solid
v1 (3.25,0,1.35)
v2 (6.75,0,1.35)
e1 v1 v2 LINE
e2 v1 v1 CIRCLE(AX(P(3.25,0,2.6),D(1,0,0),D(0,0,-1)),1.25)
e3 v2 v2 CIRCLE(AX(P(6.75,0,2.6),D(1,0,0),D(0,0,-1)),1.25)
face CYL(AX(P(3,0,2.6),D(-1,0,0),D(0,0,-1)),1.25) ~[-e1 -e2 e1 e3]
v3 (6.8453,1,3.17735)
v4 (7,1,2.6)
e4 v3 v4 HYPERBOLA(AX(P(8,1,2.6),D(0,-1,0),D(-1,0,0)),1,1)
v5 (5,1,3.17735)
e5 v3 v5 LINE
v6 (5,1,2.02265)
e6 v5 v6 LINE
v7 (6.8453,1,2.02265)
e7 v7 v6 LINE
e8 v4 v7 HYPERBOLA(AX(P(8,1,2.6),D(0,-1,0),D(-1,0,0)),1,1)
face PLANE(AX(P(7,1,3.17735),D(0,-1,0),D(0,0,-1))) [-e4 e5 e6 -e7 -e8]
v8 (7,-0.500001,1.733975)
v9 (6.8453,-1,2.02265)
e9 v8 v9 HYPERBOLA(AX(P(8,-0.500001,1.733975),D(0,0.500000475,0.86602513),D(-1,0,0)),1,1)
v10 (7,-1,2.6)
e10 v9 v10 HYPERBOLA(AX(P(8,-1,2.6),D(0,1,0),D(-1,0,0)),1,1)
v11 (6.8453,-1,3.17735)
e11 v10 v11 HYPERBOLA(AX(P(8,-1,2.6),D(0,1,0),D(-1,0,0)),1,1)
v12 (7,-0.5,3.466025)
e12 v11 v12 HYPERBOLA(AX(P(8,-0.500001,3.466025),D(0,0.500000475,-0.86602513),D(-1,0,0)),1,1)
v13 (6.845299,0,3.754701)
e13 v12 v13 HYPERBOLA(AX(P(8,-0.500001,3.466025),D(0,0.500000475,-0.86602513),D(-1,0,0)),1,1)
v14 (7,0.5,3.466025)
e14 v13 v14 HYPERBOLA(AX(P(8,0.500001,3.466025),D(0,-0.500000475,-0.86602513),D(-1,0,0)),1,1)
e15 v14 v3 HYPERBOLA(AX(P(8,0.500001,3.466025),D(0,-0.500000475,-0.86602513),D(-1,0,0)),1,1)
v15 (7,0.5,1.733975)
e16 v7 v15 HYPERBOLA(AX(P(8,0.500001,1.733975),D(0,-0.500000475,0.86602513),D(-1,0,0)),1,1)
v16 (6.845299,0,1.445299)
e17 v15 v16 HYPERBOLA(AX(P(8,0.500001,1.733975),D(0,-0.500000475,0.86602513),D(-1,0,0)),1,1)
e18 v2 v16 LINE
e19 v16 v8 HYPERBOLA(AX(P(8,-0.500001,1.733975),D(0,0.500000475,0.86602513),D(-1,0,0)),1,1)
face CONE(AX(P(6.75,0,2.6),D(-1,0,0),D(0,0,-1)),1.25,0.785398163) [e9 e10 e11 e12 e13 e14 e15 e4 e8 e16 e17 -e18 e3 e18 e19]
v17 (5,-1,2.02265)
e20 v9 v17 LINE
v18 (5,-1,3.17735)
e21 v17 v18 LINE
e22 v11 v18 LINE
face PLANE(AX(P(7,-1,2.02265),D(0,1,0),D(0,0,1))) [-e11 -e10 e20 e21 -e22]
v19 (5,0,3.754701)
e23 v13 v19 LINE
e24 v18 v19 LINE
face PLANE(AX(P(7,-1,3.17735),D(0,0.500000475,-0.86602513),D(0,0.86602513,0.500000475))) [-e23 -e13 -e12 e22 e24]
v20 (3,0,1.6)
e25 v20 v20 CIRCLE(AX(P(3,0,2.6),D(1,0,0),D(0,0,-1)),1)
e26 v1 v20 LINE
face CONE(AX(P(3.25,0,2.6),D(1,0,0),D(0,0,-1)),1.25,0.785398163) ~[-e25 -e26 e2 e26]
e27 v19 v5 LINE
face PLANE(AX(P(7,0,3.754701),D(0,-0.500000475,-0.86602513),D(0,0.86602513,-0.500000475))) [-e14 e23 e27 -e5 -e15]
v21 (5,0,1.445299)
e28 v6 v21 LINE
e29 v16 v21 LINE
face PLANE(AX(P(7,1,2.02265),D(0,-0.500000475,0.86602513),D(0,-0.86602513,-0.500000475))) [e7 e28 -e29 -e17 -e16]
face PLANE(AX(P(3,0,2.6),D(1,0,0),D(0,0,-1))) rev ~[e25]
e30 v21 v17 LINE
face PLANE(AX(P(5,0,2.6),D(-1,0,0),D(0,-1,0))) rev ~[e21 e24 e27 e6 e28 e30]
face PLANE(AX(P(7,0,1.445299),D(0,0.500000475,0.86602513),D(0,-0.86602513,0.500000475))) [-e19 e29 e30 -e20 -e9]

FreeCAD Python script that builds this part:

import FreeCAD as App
import Part
import Sketcher
from FreeCAD import Vector


def edges_at(feature, points):
    """Names of the edges that pass closest to the given points."""
    edges = feature.Shape.Edges
    near = lambda p: min(range(len(edges)), key=lambda i: edges[i].distToShape(Part.Vertex(*p))[0])
    return sorted({f"Edge{near(p) + 1}" for p in points})


def add_polygon(sketch, points):
    """Adds a closed chain of lines whose ends are joined by coincident constraints."""
    first, n = sketch.GeometryCount, len(points)
    for a, b in zip(points, points[1:] + points[:1]):
        sketch.addGeometry(Part.LineSegment(App.Vector(*a, 0), App.Vector(*b, 0)), False)
    for i in range(n):
        sketch.addConstraint(Sketcher.Constraint("Coincident", first + i, 2, first + (i + 1) % n, 1))

doc = App.newDocument("Part")
body = doc.addObject("PartDesign::Body", "Body")

# Sketch on XY plane
sketch1 = body.newObject("Sketcher::SketchObject", "Sketch")
sketch1.AttachmentSupport = (doc.getObject("XY_Plane"), [""])
sketch1.MapMode = "FlatFace"
sketch1.addGeometry(Part.Circle(Vector(0, 0, 0), Vector(0, 0, 1), 1.2), False)
sketch1.addConstraint(Sketcher.Constraint("Coincident", 0, 3, -1, 1))
sketch1.addConstraint(Sketcher.Constraint("Diameter", 0, 2.5))
pad1 = body.newObject("PartDesign::Pad", "Pad")
pad1.Profile = sketch1
pad1.Length = 4
body2 = doc.addObject("PartDesign::Body", "Body001")
doc.recompute()

body.Placement = App.Placement(Vector(0, 0, 0), App.Rotation(Vector(0, 1, 0), 90))
boolean = body2.newObject("PartDesign::Boolean", "Boolean")
boolean.Type = "Fuse"
boolean.addObjects([body])
body3 = doc.addObject("PartDesign::Body", "Body002")
doc.recompute()

body2.Placement = App.Placement(Vector(3, 0, 2.6), App.Rotation(Vector(0, 0, 1), 0))
boolean2 = body3.newObject("PartDesign::Boolean", "Boolean001")
boolean2.Type = "Fuse"
boolean2.addObjects([body2])
doc.recompute()

chamfer = body3.newObject("PartDesign::Chamfer", "Chamfer")
chamfer.Base = (boolean2, edges_at(boolean2, [(7, 0, 3.85), (3, 0, 3.85)]))
chamfer.Size = 0.25

# Sketch on YZ plane
sketch2 = body3.newObject("Sketcher::SketchObject", "Sketch001")
sketch2.AttachmentSupport = (doc.getObject("YZ_Plane002"), [""])
sketch2.MapMode = "FlatFace"
sketch2.AttachmentOffset = App.Placement(Vector(0, 0, 7), App.Rotation())
add_polygon(sketch2, [(0, 3.8), (-1, 3.2), (-1, 2), (0, 1.4), (1, 2), (1, 3.2)])  # lines 0-5
sketch2.addConstraint(Sketcher.Constraint("Vertical", 1))
sketch2.addConstraint(Sketcher.Constraint("Vertical", 4))
sketch2.addConstraint(Sketcher.Constraint("Symmetric", 1, 2, 3, 2, -2))
sketch2.addConstraint(Sketcher.Constraint("PointOnObject", 2, 2, -2))
sketch2.addConstraint(Sketcher.Constraint("PointOnObject", 5, 2, -2))
sketch2.addConstraint(Sketcher.Constraint("Parallel", 0, 3))
sketch2.addConstraint(Sketcher.Constraint("Parallel", 2, 5))
sketch2.addConstraint(Sketcher.Constraint("DistanceX", 0, 2, -1, 1, 1.0))
sketch2.addConstraint(Sketcher.Constraint("DistanceY", 1, 2, 1, 1, 1.1547))
sketch2.addConstraint(Sketcher.Constraint("Distance", 0, 1.154701))
sketch2.addConstraint(Sketcher.Constraint("DistanceY", -1, 1, 2, 2, 1.445299))
pocket1 = body3.newObject("PartDesign::Pocket", "Pocket")
pocket1.Profile = sketch2
pocket1.Length = 2

doc.recompute()
